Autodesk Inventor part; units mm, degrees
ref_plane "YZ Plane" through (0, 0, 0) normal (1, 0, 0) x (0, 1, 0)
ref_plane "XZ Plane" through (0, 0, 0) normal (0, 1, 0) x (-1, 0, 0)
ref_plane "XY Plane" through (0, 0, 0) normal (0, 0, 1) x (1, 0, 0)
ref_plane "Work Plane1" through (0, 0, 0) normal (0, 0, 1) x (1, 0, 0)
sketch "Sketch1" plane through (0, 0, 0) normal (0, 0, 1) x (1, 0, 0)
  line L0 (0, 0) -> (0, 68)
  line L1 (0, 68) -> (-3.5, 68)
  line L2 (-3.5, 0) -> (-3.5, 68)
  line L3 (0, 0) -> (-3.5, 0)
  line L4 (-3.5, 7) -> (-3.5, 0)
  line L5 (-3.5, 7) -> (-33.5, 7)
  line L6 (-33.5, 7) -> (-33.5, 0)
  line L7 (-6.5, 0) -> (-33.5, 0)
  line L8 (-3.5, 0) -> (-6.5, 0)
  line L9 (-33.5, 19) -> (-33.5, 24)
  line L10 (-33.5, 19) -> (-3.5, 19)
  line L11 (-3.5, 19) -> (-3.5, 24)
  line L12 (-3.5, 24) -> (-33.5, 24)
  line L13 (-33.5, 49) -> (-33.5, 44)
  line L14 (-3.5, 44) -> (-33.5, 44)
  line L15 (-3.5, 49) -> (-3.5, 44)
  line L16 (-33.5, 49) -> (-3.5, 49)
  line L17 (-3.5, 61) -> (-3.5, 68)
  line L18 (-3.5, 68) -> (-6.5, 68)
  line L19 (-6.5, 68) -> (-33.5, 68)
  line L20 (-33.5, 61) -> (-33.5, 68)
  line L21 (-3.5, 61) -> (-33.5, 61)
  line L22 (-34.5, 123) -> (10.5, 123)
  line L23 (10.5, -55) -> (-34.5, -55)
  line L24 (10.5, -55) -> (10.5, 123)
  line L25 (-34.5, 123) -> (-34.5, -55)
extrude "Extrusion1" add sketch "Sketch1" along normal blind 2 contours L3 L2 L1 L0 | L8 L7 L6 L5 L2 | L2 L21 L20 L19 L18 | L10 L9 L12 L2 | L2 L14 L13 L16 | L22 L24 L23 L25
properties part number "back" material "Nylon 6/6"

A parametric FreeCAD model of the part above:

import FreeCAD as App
import Part
import Sketcher

V = App.Vector


def add_polygon(sketch, points):
    """Adds a closed chain of lines whose ends are joined by coincident constraints."""
    first, n = sketch.GeometryCount, len(points)
    for a, b in zip(points, points[1:] + points[:1]):
        sketch.addGeometry(Part.LineSegment(App.Vector(*a, 0), App.Vector(*b, 0)), False)
    for i in range(n):
        sketch.addConstraint(Sketcher.Constraint("Coincident", first + i, 2, first + (i + 1) % n, 1))

doc = App.newDocument("Part")
params = doc.addObject("Spreadsheet::Sheet", "Params")
for row, (alias, value) in enumerate([
    ("sketch1_width", "45 mm"),
    ("sketch1_height", "178 mm"),
    ("pad1_length", "2 mm"),
], start=1):
    params.set(f"A{row}", alias)
    params.set(f"B{row}", "=" + value)
    params.setAlias(f"B{row}", alias)

body = doc.addObject("PartDesign::Body", "Body")

# Sketch on XY plane
sketch1 = body.newObject("Sketcher::SketchObject", "Sketch")
sketch1.AttachmentSupport = (doc.getObject("XY_Plane"), [""])
sketch1.MapMode = "FlatFace"
add_polygon(sketch1, [(10, 123), (-34, 123), (-34, -55), (10, -55)])  # lines 0-3
sketch1.addConstraint(Sketcher.Constraint("Horizontal", 0))
sketch1.addConstraint(Sketcher.Constraint("Vertical", 1))
sketch1.addConstraint(Sketcher.Constraint("Horizontal", 2))
sketch1.addConstraint(Sketcher.Constraint("Vertical", 3))
sketch1.addConstraint(Sketcher.Constraint("DistanceX", 0, 2, 0, 1, 45.0))
sketch1.addConstraint(Sketcher.Constraint("DistanceY", 1, 2, 1, 1, 178.0))
sketch1.addConstraint(Sketcher.Constraint("DistanceY", -1, 1, 0, 2, 123.0))
sketch1.addConstraint(Sketcher.Constraint("DistanceX", 0, 2, -1, 1, 34.5))
sketch1.setExpression("Constraints[8]", "Params.sketch1_width")
sketch1.setExpression("Constraints[9]", "Params.sketch1_height")
pad1 = body.newObject("PartDesign::Pad", "Pad")
pad1.Profile = sketch1
pad1.setExpression("Length", "Params.pad1_length")

doc.recompute()
